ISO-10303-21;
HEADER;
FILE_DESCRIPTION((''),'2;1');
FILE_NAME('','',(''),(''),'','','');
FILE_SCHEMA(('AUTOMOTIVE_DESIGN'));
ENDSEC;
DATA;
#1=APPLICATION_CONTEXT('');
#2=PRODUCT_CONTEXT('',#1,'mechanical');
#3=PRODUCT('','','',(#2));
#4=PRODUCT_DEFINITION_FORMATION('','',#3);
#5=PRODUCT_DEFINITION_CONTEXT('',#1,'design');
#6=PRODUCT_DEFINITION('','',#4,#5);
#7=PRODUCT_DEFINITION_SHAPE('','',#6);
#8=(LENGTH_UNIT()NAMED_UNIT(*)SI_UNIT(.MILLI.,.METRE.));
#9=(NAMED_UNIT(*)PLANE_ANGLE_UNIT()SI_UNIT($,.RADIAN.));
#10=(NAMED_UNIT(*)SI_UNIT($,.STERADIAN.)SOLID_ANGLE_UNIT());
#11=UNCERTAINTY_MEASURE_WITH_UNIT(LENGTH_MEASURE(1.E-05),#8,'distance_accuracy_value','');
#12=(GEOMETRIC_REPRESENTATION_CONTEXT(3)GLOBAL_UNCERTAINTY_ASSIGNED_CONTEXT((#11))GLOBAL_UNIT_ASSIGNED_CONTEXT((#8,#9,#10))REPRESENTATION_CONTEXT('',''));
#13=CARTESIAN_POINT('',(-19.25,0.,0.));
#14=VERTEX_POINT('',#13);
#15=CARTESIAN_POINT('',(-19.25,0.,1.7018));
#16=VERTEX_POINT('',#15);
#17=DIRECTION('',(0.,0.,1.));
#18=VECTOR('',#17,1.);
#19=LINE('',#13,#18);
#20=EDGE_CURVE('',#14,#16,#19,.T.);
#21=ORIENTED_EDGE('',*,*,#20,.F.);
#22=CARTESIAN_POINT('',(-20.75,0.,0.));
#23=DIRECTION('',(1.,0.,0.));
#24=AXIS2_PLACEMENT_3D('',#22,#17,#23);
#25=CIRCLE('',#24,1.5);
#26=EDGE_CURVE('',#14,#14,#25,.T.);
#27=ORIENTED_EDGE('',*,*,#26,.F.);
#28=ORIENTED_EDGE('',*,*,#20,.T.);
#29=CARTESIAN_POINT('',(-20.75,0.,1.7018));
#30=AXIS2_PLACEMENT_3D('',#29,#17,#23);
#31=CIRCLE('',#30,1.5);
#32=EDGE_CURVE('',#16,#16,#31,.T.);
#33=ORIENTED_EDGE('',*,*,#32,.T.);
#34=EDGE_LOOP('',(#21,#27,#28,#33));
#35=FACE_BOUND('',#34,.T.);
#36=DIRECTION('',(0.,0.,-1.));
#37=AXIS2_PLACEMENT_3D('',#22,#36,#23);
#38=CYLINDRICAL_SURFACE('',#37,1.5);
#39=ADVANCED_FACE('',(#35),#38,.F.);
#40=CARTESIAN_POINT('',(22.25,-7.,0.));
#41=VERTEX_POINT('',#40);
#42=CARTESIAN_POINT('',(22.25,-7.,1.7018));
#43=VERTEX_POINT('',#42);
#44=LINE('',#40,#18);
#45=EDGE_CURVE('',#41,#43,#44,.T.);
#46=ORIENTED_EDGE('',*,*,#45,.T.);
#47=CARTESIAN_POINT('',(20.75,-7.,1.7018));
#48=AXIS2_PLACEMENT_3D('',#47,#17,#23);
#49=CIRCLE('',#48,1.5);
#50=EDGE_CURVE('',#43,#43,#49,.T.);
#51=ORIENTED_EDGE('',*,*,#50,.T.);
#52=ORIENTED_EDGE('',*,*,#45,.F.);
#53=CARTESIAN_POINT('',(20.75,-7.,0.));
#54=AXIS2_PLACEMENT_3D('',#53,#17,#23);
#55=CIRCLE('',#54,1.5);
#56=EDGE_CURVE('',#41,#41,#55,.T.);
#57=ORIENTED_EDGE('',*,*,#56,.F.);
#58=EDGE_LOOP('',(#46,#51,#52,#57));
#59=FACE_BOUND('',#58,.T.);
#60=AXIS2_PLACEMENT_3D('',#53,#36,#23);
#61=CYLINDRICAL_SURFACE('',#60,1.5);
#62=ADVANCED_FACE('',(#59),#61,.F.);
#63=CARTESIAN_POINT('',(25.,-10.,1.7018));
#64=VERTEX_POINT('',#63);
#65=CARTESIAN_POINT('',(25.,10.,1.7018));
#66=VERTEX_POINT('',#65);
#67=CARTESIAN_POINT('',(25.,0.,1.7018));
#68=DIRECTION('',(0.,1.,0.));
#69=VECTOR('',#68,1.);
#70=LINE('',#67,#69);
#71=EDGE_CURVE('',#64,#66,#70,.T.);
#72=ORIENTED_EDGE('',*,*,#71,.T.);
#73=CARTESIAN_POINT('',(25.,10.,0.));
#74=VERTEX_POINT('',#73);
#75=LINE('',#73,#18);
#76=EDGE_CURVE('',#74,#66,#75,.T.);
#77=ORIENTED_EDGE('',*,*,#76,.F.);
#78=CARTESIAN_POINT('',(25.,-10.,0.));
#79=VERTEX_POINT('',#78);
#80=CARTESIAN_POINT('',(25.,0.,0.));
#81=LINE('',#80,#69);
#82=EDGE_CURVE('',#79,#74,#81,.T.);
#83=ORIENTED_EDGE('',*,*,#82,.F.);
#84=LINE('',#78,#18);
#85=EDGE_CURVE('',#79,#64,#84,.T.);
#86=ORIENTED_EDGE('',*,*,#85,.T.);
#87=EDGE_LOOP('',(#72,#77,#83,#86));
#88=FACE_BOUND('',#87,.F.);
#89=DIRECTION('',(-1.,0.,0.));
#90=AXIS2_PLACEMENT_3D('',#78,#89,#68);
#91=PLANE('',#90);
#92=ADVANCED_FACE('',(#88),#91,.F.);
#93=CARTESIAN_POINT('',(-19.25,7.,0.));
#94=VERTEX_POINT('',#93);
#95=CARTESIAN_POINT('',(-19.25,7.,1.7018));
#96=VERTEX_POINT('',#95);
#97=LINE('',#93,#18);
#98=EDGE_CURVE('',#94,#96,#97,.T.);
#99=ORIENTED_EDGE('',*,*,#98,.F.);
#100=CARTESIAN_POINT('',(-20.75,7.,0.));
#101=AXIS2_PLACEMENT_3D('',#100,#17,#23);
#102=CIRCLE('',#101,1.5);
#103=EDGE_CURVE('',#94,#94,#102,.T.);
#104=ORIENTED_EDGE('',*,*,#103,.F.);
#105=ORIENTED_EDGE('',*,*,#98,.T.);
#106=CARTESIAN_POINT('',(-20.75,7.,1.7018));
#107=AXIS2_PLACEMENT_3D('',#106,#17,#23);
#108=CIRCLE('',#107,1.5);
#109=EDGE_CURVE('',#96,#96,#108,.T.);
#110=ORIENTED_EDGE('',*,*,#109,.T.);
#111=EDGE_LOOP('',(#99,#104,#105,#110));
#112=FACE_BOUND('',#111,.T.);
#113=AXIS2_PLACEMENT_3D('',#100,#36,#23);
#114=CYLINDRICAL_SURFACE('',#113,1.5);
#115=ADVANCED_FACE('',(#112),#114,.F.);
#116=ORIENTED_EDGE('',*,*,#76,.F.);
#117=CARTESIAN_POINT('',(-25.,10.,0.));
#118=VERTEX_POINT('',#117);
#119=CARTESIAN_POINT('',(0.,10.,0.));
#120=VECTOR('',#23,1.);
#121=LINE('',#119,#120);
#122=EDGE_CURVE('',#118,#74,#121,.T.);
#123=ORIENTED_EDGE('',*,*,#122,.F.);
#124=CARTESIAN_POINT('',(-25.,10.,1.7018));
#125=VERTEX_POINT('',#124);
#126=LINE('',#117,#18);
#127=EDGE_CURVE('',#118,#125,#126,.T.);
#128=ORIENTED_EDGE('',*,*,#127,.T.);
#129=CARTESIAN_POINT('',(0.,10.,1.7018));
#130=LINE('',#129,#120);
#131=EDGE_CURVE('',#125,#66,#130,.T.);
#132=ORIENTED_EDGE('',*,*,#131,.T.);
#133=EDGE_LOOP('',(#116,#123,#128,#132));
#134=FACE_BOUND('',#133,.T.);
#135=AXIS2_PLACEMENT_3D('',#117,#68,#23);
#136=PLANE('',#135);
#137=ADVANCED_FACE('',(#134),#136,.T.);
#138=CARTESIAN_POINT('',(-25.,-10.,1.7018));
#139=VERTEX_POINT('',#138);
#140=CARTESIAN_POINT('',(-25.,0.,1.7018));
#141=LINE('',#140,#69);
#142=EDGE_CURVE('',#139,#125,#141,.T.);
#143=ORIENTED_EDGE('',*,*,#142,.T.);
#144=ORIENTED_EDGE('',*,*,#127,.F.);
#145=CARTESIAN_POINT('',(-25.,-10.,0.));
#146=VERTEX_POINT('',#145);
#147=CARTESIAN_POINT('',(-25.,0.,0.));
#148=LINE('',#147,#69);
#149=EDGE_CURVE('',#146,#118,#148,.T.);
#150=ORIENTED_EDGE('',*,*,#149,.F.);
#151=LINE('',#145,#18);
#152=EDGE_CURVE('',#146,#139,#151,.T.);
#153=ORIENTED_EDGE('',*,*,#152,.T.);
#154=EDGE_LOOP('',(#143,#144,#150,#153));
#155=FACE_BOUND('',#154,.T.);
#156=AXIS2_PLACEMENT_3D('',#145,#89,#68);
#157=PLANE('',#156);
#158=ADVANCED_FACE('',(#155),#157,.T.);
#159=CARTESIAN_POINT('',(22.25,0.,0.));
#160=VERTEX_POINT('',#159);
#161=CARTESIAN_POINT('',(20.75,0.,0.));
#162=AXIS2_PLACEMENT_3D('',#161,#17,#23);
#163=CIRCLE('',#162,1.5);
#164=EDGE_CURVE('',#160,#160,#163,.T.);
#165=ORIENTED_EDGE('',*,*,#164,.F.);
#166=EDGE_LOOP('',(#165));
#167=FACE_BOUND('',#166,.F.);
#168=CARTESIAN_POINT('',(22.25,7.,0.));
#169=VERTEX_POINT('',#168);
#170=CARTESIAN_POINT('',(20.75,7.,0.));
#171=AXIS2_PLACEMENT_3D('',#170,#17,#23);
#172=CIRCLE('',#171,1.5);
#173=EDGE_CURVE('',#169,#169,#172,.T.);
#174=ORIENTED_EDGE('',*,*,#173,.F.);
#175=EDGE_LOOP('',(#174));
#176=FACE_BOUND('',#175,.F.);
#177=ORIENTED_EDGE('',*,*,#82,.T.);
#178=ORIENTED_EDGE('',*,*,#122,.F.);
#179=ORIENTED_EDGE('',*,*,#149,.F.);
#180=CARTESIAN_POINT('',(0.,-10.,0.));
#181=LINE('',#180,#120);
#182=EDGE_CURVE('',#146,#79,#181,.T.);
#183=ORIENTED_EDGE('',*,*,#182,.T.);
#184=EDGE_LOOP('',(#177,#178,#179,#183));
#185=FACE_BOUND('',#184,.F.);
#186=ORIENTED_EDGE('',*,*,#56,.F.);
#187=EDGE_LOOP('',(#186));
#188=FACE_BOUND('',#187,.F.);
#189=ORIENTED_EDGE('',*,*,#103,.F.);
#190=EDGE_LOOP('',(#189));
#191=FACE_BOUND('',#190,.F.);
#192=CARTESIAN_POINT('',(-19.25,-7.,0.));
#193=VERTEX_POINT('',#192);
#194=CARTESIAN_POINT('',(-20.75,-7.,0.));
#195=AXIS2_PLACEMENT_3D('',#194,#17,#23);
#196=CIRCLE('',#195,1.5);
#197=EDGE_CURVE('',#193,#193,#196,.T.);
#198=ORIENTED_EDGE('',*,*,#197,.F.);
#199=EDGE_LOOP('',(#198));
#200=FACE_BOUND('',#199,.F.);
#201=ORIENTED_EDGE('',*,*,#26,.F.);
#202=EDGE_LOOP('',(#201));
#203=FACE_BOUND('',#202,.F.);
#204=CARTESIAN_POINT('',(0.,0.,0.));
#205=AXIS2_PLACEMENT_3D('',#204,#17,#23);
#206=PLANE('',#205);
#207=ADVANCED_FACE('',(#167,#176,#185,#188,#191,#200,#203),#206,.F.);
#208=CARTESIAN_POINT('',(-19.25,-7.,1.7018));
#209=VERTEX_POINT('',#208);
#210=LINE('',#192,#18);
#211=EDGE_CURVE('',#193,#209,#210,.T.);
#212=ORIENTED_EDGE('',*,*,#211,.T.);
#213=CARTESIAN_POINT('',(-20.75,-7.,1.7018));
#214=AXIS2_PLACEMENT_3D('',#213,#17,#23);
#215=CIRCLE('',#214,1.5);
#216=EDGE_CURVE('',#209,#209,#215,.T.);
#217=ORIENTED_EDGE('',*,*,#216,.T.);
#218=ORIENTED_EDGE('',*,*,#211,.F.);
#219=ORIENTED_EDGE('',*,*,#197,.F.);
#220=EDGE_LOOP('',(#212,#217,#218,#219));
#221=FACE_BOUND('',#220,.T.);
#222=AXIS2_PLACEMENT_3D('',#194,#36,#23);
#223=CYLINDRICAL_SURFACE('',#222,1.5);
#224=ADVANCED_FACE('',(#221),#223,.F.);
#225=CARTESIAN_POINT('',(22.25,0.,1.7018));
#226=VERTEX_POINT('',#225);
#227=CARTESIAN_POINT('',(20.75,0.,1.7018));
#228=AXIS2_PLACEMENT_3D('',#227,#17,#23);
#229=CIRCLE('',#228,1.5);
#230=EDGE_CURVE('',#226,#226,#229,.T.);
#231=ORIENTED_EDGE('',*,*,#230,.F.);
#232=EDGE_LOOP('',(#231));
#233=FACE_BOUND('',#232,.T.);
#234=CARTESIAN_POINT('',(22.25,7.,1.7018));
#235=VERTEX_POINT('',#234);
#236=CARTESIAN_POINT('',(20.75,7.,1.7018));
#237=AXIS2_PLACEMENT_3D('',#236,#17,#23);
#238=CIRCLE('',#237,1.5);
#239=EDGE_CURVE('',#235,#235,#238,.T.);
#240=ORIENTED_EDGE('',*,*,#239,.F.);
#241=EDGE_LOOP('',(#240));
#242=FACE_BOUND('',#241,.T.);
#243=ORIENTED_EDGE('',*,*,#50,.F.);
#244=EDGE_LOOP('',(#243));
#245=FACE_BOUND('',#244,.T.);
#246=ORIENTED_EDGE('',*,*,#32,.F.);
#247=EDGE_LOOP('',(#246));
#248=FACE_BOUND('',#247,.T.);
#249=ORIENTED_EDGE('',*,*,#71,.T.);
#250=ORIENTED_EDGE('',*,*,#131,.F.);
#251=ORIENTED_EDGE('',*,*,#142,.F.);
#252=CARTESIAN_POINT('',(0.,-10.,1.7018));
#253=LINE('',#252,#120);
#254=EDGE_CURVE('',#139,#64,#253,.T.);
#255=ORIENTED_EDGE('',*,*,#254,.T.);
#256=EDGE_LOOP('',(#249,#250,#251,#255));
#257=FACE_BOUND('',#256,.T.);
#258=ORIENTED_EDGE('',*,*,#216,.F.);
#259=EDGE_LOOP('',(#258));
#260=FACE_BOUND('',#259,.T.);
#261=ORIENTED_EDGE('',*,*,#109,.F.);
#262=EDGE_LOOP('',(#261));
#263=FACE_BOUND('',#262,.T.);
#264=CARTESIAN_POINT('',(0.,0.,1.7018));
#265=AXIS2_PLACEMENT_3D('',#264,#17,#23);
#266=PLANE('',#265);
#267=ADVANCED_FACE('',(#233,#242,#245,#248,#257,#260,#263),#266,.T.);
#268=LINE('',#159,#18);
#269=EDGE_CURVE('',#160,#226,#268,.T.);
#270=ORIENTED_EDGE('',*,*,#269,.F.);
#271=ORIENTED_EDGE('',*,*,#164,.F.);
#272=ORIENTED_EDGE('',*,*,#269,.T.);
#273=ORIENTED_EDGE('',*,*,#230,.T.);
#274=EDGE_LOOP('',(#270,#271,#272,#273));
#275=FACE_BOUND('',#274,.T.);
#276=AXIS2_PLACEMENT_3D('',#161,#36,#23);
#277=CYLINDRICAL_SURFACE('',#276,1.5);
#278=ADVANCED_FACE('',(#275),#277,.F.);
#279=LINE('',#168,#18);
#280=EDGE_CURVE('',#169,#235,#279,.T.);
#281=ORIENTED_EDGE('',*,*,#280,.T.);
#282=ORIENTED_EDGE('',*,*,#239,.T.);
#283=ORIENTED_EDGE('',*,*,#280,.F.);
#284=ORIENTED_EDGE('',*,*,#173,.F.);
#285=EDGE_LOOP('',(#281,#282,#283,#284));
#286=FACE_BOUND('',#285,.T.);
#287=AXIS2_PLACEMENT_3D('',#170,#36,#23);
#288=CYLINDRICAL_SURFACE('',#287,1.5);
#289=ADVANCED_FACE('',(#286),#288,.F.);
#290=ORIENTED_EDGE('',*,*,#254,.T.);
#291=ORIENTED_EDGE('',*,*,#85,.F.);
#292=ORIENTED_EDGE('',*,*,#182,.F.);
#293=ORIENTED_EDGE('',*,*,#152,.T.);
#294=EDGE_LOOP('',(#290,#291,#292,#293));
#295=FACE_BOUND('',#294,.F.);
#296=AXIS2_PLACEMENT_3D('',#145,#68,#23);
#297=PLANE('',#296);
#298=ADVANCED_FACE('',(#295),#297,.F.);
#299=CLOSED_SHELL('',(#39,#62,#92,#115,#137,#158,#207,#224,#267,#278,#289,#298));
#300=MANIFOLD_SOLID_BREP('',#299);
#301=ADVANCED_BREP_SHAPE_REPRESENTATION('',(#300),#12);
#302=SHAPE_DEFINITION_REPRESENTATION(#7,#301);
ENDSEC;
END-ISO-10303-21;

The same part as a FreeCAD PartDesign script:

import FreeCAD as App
import Part
import Sketcher
from FreeCAD import Vector
Q = App.Units.Quantity

doc = App.newDocument("Part")
body = doc.addObject("PartDesign::Body", "Body")

sketch1 = body.newObject("Sketcher::SketchObject", "Sketch")
sketch1.AttachmentSupport = (doc.getObject("XY_Plane"), [""])
sketch1.MapMode = "FlatFace"
sketch1.addGeometry(Part.LineSegment(Vector(-25, 10, 0), Vector(-25, -10, 0)), False)
sketch1.addGeometry(Part.LineSegment(Vector(-25, -10, 0), Vector(25, -10, 0)), False)
sketch1.addGeometry(Part.LineSegment(Vector(25, -10, 0), Vector(25, 10, 0)), False)
sketch1.addGeometry(Part.LineSegment(Vector(25, 10, 0), Vector(-25, 10, 0)), False)
sketch1.addGeometry(Part.Circle(Vector(-20.8, -7, 0), Vector(0, 0, 1), 1.5), False)
sketch1.addGeometry(Part.Circle(Vector(20.8, -7, 0), Vector(0, 0, 1), 1.5), False)
sketch1.addGeometry(Part.Circle(Vector(-20.8, 0, 0), Vector(0, 0, 1), 1.5), False)
sketch1.addGeometry(Part.Circle(Vector(-20.8, 7, 0), Vector(0, 0, 1), 1.5), False)
sketch1.addGeometry(Part.Circle(Vector(20.8, 0, 0), Vector(0, 0, 1), 1.5), False)
sketch1.addGeometry(Part.Circle(Vector(20.8, 7, 0), Vector(0, 0, 1), 1.5), False)
sketch1.addConstraint(Sketcher.Constraint("Coincident", 0, 2, 1, 1))
sketch1.addConstraint(Sketcher.Constraint("Coincident", 1, 2, 2, 1))
sketch1.addConstraint(Sketcher.Constraint("Coincident", 2, 2, 3, 1))
sketch1.addConstraint(Sketcher.Constraint("Coincident", 3, 2, 0, 1))
sketch1.addConstraint(Sketcher.Constraint("Vertical", 0))
sketch1.addConstraint(Sketcher.Constraint("Horizontal", 1))
sketch1.addConstraint(Sketcher.Constraint("Vertical", 2))
sketch1.addConstraint(Sketcher.Constraint("Horizontal", 3))
sketch1.addConstraint(Sketcher.Constraint("Equal", 4, 5))
sketch1.addConstraint(Sketcher.Constraint("Equal", 5, 6))
sketch1.addConstraint(Sketcher.Constraint("Equal", 6, 7))
sketch1.addConstraint(Sketcher.Constraint("Equal", 7, 8))
sketch1.addConstraint(Sketcher.Constraint("Equal", 8, 9))
sketch1.addConstraint(Sketcher.Constraint("Symmetric", 5, 3, 7, 3, -1, 1))
sketch1.addConstraint(Sketcher.Constraint("Symmetric", 6, 3, 8, 3, -1, 1))
sketch1.addConstraint(Sketcher.Constraint("Symmetric", 4, 3, 9, 3, -1, 1))
sketch1.addConstraint(Sketcher.Constraint("Symmetric", 0, 2, 2, 2, -1, 1))
sketch1.addConstraint(Sketcher.Constraint("Symmetric", 4, 3, 5, 3, -2))
sketch1.addConstraint(Sketcher.Constraint("PointOnObject", 6, 3, -1))
sketch1.addConstraint(Sketcher.Constraint("Vertical", 4, 3, 6, 3))
sketch1.addConstraint(Sketcher.Constraint("Diameter", 4, Q("3 mm")))
sketch1.addConstraint(Sketcher.Constraint("DistanceX", 1, 1, 1, 2, Q("50 mm")))
sketch1.addConstraint(Sketcher.Constraint("DistanceY", 0, 2, 0, 1, Q("20 mm")))
sketch1.addConstraint(Sketcher.Constraint("DistanceY", 4, 3, -1, 1, Q("7 mm")))
sketch1.addConstraint(Sketcher.Constraint("DistanceX", 4, 3, 5, 3, Q("41.5 mm")))
pad1 = body.newObject("PartDesign::Pad", "Pad")
pad1.Profile = sketch1
pad1.Length = 1.7018

doc.recompute()
